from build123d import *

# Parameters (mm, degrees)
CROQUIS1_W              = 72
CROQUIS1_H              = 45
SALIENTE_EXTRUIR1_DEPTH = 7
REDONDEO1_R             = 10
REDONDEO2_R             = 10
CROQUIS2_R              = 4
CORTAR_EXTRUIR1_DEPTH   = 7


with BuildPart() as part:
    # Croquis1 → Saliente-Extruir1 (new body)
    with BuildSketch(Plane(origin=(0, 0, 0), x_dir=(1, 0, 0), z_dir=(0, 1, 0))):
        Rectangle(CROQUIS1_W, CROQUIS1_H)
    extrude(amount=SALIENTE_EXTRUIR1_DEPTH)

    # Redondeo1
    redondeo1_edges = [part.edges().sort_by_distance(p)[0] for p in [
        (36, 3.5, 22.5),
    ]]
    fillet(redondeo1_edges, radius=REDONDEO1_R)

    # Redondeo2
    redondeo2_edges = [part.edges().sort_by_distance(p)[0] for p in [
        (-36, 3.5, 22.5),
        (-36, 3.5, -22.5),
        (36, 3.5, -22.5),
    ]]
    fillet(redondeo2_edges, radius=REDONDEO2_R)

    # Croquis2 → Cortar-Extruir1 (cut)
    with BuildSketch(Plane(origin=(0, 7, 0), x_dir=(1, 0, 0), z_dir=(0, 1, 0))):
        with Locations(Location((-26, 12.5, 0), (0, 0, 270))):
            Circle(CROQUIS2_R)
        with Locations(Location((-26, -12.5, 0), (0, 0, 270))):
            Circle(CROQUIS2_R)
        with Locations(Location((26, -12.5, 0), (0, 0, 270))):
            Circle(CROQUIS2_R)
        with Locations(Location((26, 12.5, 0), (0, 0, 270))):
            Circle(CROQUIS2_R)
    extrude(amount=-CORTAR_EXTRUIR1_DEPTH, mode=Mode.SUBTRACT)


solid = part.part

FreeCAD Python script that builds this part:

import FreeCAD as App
import Part
import Sketcher

V = App.Vector


def edges_at(feature, points):
    """Names of the edges that pass closest to the given points."""
    edges = feature.Shape.Edges
    near = lambda p: min(range(len(edges)), key=lambda i: edges[i].distToShape(Part.Vertex(*p))[0])
    return sorted({f"Edge{near(p) + 1}" for p in points})


def add_polygon(sketch, points):
    """Adds a closed chain of lines whose ends are joined by coincident constraints."""
    first, n = sketch.GeometryCount, len(points)
    for a, b in zip(points, points[1:] + points[:1]):
        sketch.addGeometry(Part.LineSegment(App.Vector(*a, 0), App.Vector(*b, 0)), False)
    for i in range(n):
        sketch.addConstraint(Sketcher.Constraint("Coincident", first + i, 2, first + (i + 1) % n, 1))

doc = App.newDocument("Part")
body = doc.addObject("PartDesign::Body", "Body")

sketch1 = body.newObject("Sketcher::SketchObject", "Sketch")
sketch1.AttachmentSupport = (doc.getObject("XZ_Plane"), [""])
sketch1.MapMode = "FlatFace"
add_polygon(sketch1, [(-36, -22), (-36, 22), (36, 22), (36, -22)])
sketch1.addConstraint([
    Sketcher.Constraint("Vertical", 0),
    Sketcher.Constraint("Horizontal", 1),
    Sketcher.Constraint("Vertical", 2),
    Sketcher.Constraint("Horizontal", 3),
    Sketcher.Constraint("Symmetric", 0, 2, 2, 2, -1, 1),
    Sketcher.Constraint("DistanceX", 1, 1, 1, 2, 72.0),
    Sketcher.Constraint("DistanceY", 0, 1, 0, 2, 45.0),
])
pad1 = body.newObject("PartDesign::Pad", "Pad")
pad1.Profile = sketch1
pad1.Length = 7
pad1.Reversed = True
doc.recompute()

fillet = body.newObject("PartDesign::Fillet", "Fillet")
fillet.Base = (pad1, edges_at(pad1, [(36, 3.5, 22.5)]))
fillet.Radius = 10
doc.recompute()

fillet2 = body.newObject("PartDesign::Fillet", "Fillet001")
fillet2.Base = (fillet, edges_at(fillet, [(-36, 3.5, 22.5), (-36, 3.5, -22.5), (36, 3.5, -22.5)]))
fillet2.Radius = 10

sketch2 = body.newObject("Sketcher::SketchObject", "Sketch001")
sketch2.AttachmentSupport = (doc.getObject("XZ_Plane"), [""])
sketch2.MapMode = "FlatFace"
sketch2.AttachmentOffset = App.Placement(V(0, 0, -7), App.Rotation())
sketch2.addGeometry([
    Part.Circle(V(-26, -12.5, 0), V(0, 0, 1), 4),
    Part.Circle(V(-26, 12.5, 0), V(0, 0, 1), 4),
    Part.Circle(V(26, 12.5, 0), V(0, 0, 1), 4),
    Part.Circle(V(26, -12.5, 0), V(0, 0, 1), 4),
], False)
sketch2.addConstraint([
    Sketcher.Constraint("Equal", 0, 1),
    Sketcher.Constraint("Equal", 1, 2),
    Sketcher.Constraint("Equal", 2, 3),
    Sketcher.Constraint("Symmetric", 0, 3, 2, 3, -1, 1),
    Sketcher.Constraint("Symmetric", 1, 3, 3, 3, -1, 1),
    Sketcher.Constraint("Symmetric", 1, 3, 2, 3, -2),
    Sketcher.Constraint("Diameter", 0, 8.0),
    Sketcher.Constraint("DistanceX", 0, 3, -1, 1, 26.0),
    Sketcher.Constraint("DistanceY", 0, 3, 1, 3, 25.0),
])
pocket1 = body.newObject("PartDesign::Pocket", "Pocket")
pocket1.Profile = sketch2
pocket1.Length = 7
pocket1.Reversed = True

doc.recompute()
